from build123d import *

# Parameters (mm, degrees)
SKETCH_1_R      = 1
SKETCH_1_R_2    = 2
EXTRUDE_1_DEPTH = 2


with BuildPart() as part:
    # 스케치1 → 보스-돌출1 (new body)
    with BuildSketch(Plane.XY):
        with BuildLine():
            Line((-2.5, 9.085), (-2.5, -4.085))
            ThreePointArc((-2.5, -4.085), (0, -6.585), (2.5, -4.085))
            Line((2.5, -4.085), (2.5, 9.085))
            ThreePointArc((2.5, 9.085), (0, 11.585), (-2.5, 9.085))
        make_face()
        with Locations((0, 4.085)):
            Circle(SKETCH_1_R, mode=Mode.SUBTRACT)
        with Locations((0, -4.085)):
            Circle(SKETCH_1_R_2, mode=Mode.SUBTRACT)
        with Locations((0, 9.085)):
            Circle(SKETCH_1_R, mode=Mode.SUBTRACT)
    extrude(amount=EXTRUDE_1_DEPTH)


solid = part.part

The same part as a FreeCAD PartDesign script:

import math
import FreeCAD as App
import Part
import Sketcher
from FreeCAD import Vector
Q = App.Units.Quantity

doc = App.newDocument("Part")
body = doc.addObject("PartDesign::Body", "Body")

# Sketch on XY plane
sketch1 = body.newObject("Sketcher::SketchObject", "Sketch")
sketch1.AttachmentSupport = (doc.getObject("XY_Plane"), [""])
sketch1.MapMode = "FlatFace"
sketch1.addGeometry([
    Part.LineSegment(Vector(-2.5, 9.1, 0), Vector(-2.5, -4.1, 0)),  # 0
    Part.ArcOfCircle(Part.Circle(Vector(0, -4.1, 0), Vector(0, 0, 1), 2.5), math.radians(180), math.radians(360)),  # 1
    Part.LineSegment(Vector(2.5, -4.1, 0), Vector(2.5, 9.1, 0)),  # 2
    Part.ArcOfCircle(Part.Circle(Vector(0, 9.1, 0), Vector(0, 0, 1), 2.5), math.radians(0), math.radians(180)),  # 3
    Part.Circle(Vector(0, -4.1, 0), Vector(0, 0, 1), 2),  # 4
    Part.Circle(Vector(0, 4.1, 0), Vector(0, 0, 1), 1),  # 5
    Part.Circle(Vector(0, 9.1, 0), Vector(0, 0, 1), 1),  # 6
], False)
sketch1.addConstraint([
    Sketcher.Constraint("Tangent", 0, 2, 1, 1),
    Sketcher.Constraint("Tangent", 1, 2, 2, 1),
    Sketcher.Constraint("Tangent", 2, 2, 3, 1),
    Sketcher.Constraint("Tangent", 3, 2, 0, 1),
    Sketcher.Constraint("Vertical", 0),
    Sketcher.Constraint("Vertical", 2),
    Sketcher.Constraint("Coincident", 4, 3, 1, 3),
    Sketcher.Constraint("Coincident", 6, 3, 3, 3),
    Sketcher.Constraint("Equal", 5, 6),
    Sketcher.Constraint("Symmetric", 1, 3, 5, 3, -1, 1),
    Sketcher.Constraint("PointOnObject", 1, 3, -2),
    Sketcher.Constraint("Diameter", 4, Q("4 mm")),
    Sketcher.Constraint("Diameter", 5, Q("2 mm")),
    Sketcher.Constraint("Radius", 1, Q("2.5 mm")),
    Sketcher.Constraint("DistanceY", 5, 3, 3, 3, Q("5 mm")),
    Sketcher.Constraint("DistanceY", 0, 2, 0, 1, Q("13.17 mm")),
])
pad1 = body.newObject("PartDesign::Pad", "Pad")
pad1.Profile = sketch1
pad1.Length = 2

doc.recompute()
